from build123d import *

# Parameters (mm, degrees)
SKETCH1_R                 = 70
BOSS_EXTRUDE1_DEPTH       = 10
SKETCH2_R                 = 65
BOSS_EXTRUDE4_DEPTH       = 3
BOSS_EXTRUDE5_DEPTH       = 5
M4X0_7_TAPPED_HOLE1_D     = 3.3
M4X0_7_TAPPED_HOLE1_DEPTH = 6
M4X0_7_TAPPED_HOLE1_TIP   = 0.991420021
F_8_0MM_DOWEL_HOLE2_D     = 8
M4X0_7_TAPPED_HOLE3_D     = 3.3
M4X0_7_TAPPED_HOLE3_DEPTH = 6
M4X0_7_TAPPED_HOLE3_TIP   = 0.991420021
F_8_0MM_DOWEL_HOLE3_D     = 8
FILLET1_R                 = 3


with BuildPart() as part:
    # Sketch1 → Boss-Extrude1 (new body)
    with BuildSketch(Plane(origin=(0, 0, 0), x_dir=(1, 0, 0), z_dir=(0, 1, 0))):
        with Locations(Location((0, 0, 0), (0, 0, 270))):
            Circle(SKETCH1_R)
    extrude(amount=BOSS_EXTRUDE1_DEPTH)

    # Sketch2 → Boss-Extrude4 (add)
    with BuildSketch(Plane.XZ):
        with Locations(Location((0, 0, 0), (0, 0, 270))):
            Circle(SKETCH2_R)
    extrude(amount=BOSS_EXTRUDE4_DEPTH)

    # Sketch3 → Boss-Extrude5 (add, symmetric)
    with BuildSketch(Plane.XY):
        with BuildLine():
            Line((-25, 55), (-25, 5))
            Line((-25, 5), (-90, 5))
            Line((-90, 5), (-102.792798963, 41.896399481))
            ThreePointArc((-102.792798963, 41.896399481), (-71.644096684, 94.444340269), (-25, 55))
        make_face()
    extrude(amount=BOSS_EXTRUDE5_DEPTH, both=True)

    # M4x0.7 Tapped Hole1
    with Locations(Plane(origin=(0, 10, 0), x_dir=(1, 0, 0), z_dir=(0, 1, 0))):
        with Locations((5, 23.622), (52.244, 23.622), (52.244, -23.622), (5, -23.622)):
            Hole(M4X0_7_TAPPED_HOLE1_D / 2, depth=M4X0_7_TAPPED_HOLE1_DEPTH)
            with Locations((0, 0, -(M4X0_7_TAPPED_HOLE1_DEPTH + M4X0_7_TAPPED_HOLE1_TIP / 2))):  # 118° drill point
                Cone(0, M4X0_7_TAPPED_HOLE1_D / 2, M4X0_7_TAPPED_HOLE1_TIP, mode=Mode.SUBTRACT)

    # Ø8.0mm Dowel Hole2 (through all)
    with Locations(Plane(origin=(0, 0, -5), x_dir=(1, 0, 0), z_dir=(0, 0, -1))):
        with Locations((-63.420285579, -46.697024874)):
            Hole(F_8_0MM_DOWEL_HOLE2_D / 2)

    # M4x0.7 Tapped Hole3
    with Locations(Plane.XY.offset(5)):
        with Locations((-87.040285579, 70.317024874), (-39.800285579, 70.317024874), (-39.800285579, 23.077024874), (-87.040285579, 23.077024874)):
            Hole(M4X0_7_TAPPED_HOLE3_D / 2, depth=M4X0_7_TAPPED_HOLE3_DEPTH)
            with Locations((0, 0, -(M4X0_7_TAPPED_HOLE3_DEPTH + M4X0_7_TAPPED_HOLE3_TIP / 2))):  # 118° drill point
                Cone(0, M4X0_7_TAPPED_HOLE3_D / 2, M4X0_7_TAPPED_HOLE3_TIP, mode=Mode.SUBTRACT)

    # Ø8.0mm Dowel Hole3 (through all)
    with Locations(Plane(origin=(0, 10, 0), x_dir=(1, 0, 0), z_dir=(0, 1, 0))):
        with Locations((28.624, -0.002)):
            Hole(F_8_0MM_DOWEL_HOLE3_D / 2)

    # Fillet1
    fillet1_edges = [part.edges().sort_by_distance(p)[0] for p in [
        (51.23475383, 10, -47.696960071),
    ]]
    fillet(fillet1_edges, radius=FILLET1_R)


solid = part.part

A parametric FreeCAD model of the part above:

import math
import FreeCAD as App
import Part
import Sketcher


def edges_at(feature, points):
    """Names of the edges that pass closest to the given points."""
    edges = feature.Shape.Edges
    near = lambda p: min(range(len(edges)), key=lambda i: edges[i].distToShape(Part.Vertex(*p))[0])
    return sorted({f"Edge{near(p) + 1}" for p in points})

doc = App.newDocument("Part")
body = doc.addObject("PartDesign::Body", "Body")

sketch1 = body.newObject("Sketcher::SketchObject", "Sketch")
sketch1.AttachmentSupport = (doc.getObject("XZ_Plane"), [""])
sketch1.MapMode = "FlatFace"
sketch1.addGeometry(Part.Circle(App.Vector(0, 0, 0), App.Vector(0, 0, 1), 70), False)
sketch1.addConstraint(Sketcher.Constraint("Coincident", 0, 3, -1, 1))
sketch1.addConstraint(Sketcher.Constraint("Diameter", 0, 140.0))
pad1 = body.newObject("PartDesign::Pad", "Pad")
pad1.Profile = sketch1
pad1.Length = 10
pad1.Reversed = True

sketch2 = body.newObject("Sketcher::SketchObject", "Sketch001")
sketch2.AttachmentSupport = (doc.getObject("XZ_Plane"), [""])
sketch2.MapMode = "FlatFace"
sketch2.addGeometry(Part.Circle(App.Vector(0, 0, 0), App.Vector(0, 0, 1), 65), False)
sketch2.addConstraint(Sketcher.Constraint("Coincident", 0, 3, -1, 1))
sketch2.addConstraint(Sketcher.Constraint("Diameter", 0, 130.0))
pad2 = body.newObject("PartDesign::Pad", "Pad001")
pad2.Profile = sketch2
pad2.Length = 3

sketch3 = body.newObject("Sketcher::SketchObject", "Sketch002")
sketch3.AttachmentSupport = (doc.getObject("XY_Plane"), [""])
sketch3.MapMode = "FlatFace"
sketch3.addGeometry(Part.LineSegment(App.Vector(-25, 5, 0), App.Vector(-25, 55, 0)), False)
sketch3.addGeometry(Part.ArcOfCircle(Part.Circle(App.Vector(-65, 55, 0), App.Vector(0, 0, 1), 40), math.radians(0), math.radians(199)), False)
sketch3.addGeometry(Part.LineSegment(App.Vector(-103, 42, 0), App.Vector(-90, 5, 0)), False)
sketch3.addGeometry(Part.LineSegment(App.Vector(-90, 5, 0), App.Vector(-25, 5, 0)), False)
sketch3.addConstraint(Sketcher.Constraint("Tangent", 0, 2, 1, 1))
sketch3.addConstraint(Sketcher.Constraint("Tangent", 1, 2, 2, 1))
sketch3.addConstraint(Sketcher.Constraint("Coincident", 2, 2, 3, 1))
sketch3.addConstraint(Sketcher.Constraint("Coincident", 3, 2, 0, 1))
sketch3.addConstraint(Sketcher.Constraint("Vertical", 0))
sketch3.addConstraint(Sketcher.Constraint("Horizontal", 3))
sketch3.addConstraint(Sketcher.Constraint("Radius", 1, 40.0))
sketch3.addConstraint(Sketcher.Constraint("DistanceX", 3, 1, 3, 2, 65.0))
sketch3.addConstraint(Sketcher.Constraint("DistanceY", 0, 1, 0, 2, 50.0))
sketch3.addConstraint(Sketcher.Constraint("DistanceX", 1, 3, -1, 1, 65.0))
sketch3.addConstraint(Sketcher.Constraint("DistanceY", -1, 1, 1, 3, 55.0))
pad3 = body.newObject("PartDesign::Pad", "Pad002")
pad3.Profile = sketch3
pad3.Length = 10
pad3.Midplane = True

sketch4 = body.newObject("Sketcher::SketchObject", "Sketch003")
sketch4.AttachmentSupport = (doc.getObject("XZ_Plane"), [""])
sketch4.MapMode = "FlatFace"
sketch4.AttachmentOffset = App.Placement(App.Vector(0, 0, -10), App.Rotation())
sketch4.addGeometry(Part.Circle(App.Vector(5, -23.6, 0), App.Vector(0, 0, 1), 1.6), False)
sketch4.addGeometry(Part.Circle(App.Vector(52.2, -23.6, 0), App.Vector(0, 0, 1), 1.6), False)
sketch4.addGeometry(Part.Circle(App.Vector(52.2, 23.6, 0), App.Vector(0, 0, 1), 1.6), False)
sketch4.addGeometry(Part.Circle(App.Vector(5, 23.6, 0), App.Vector(0, 0, 1), 1.6), False)
sketch4.addConstraint(Sketcher.Constraint("Equal", 0, 1))
sketch4.addConstraint(Sketcher.Constraint("Equal", 1, 2))
sketch4.addConstraint(Sketcher.Constraint("Equal", 2, 3))
sketch4.addConstraint(Sketcher.Constraint("Symmetric", 1, 3, 2, 3, -1))
sketch4.addConstraint(Sketcher.Constraint("Symmetric", 0, 3, 3, 3, -1))
sketch4.addConstraint(Sketcher.Constraint("Horizontal", 0, 3, 1, 3))
sketch4.addConstraint(Sketcher.Constraint("Diameter", 0, 3.3))
sketch4.addConstraint(Sketcher.Constraint("DistanceX", -1, 1, 0, 3, 5.0))
sketch4.addConstraint(Sketcher.Constraint("DistanceY", 0, 3, -1, 1, 23.622))
sketch4.addConstraint(Sketcher.Constraint("DistanceX", -1, 1, 1, 3, 52.244))
doc.recompute()
hole = body.newObject("PartDesign::Hole", "Hole")
hole.Profile = sketch4
hole.ThreadType = "None"
hole.Diameter = 3.3
hole.DepthType = "Dimension"
hole.Depth = 6
hole.DrillPoint = "Angled"
hole.DrillPointAngle = 118
hole.Reversed = True

sketch5 = body.newObject("Sketcher::SketchObject", "Sketch004")
sketch5.AttachmentSupport = (doc.getObject("XY_Plane"), [""])
sketch5.MapMode = "FlatFace"
sketch5.AttachmentOffset = App.Placement(App.Vector(0, 0, -5), App.Rotation())
sketch5.addGeometry(Part.Circle(App.Vector(-63.4, 46.7, 0), App.Vector(0, 0, 1), 4), False)
sketch5.addConstraint(Sketcher.Constraint("Diameter", 0, 8.0))
sketch5.addConstraint(Sketcher.Constraint("DistanceX", 0, 3, -1, 1, 63.420286))
sketch5.addConstraint(Sketcher.Constraint("DistanceY", -1, 1, 0, 3, 46.697025))
doc.recompute()
hole2 = body.newObject("PartDesign::Hole", "Hole001")
hole2.Profile = sketch5
hole2.ThreadType = "None"
hole2.Diameter = 8
hole2.DepthType = "ThroughAll"
hole2.Reversed = True

sketch6 = body.newObject("Sketcher::SketchObject", "Sketch005")
sketch6.AttachmentSupport = (doc.getObject("XY_Plane"), [""])
sketch6.MapMode = "FlatFace"
sketch6.AttachmentOffset = App.Placement(App.Vector(0, 0, 5), App.Rotation())
sketch6.addGeometry(Part.Circle(App.Vector(-87, 70.3, 0), App.Vector(0, 0, 1), 1.6), False)
sketch6.addGeometry(Part.Circle(App.Vector(-39.8, 70.3, 0), App.Vector(0, 0, 1), 1.6), False)
sketch6.addGeometry(Part.Circle(App.Vector(-39.8, 23.1, 0), App.Vector(0, 0, 1), 1.6), False)
sketch6.addGeometry(Part.Circle(App.Vector(-87, 23.1, 0), App.Vector(0, 0, 1), 1.6), False)
sketch6.addConstraint(Sketcher.Constraint("Equal", 0, 1))
sketch6.addConstraint(Sketcher.Constraint("Equal", 1, 2))
sketch6.addConstraint(Sketcher.Constraint("Equal", 2, 3))
sketch6.addConstraint(Sketcher.Constraint("Horizontal", 0, 3, 1, 3))
sketch6.addConstraint(Sketcher.Constraint("Horizontal", 2, 3, 3, 3))
sketch6.addConstraint(Sketcher.Constraint("Vertical", 1, 3, 2, 3))
sketch6.addConstraint(Sketcher.Constraint("Vertical", 0, 3, 3, 3))
sketch6.addConstraint(Sketcher.Constraint("Diameter", 0, 3.3))
sketch6.addConstraint(Sketcher.Constraint("DistanceX", 0, 3, 1, 3, 47.24))
sketch6.addConstraint(Sketcher.Constraint("DistanceY", 2, 3, 1, 3, 47.24))
sketch6.addConstraint(Sketcher.Constraint("DistanceX", 0, 3, -1, 1, 87.040286))
sketch6.addConstraint(Sketcher.Constraint("DistanceY", -1, 1, 0, 3, 70.317025))
doc.recompute()
hole3 = body.newObject("PartDesign::Hole", "Hole002")
hole3.Profile = sketch6
hole3.ThreadType = "None"
hole3.Diameter = 3.3
hole3.DepthType = "Dimension"
hole3.Depth = 6
hole3.DrillPoint = "Angled"
hole3.DrillPointAngle = 118

sketch7 = body.newObject("Sketcher::SketchObject", "Sketch006")
sketch7.AttachmentSupport = (doc.getObject("XZ_Plane"), [""])
sketch7.MapMode = "FlatFace"
sketch7.AttachmentOffset = App.Placement(App.Vector(0, 0, -10), App.Rotation())
sketch7.addGeometry(Part.Circle(App.Vector(28.6, 0, 0), App.Vector(0, 0, 1), 4), False)
sketch7.addConstraint(Sketcher.Constraint("Diameter", 0, 8.0))
sketch7.addConstraint(Sketcher.Constraint("DistanceX", -1, 1, 0, 3, 28.624))
sketch7.addConstraint(Sketcher.Constraint("DistanceY", -1, 1, 0, 3, 0.002))
doc.recompute()
hole4 = body.newObject("PartDesign::Hole", "Hole003")
hole4.Profile = sketch7
hole4.ThreadType = "None"
hole4.Diameter = 8
hole4.DepthType = "ThroughAll"
hole4.Reversed = True
doc.recompute()

fillet = body.newObject("PartDesign::Fillet", "Fillet")
fillet.Base = (hole4, edges_at(hole4, [(51.235, 10, -47.697)]))
fillet.Radius = 3

doc.recompute()
